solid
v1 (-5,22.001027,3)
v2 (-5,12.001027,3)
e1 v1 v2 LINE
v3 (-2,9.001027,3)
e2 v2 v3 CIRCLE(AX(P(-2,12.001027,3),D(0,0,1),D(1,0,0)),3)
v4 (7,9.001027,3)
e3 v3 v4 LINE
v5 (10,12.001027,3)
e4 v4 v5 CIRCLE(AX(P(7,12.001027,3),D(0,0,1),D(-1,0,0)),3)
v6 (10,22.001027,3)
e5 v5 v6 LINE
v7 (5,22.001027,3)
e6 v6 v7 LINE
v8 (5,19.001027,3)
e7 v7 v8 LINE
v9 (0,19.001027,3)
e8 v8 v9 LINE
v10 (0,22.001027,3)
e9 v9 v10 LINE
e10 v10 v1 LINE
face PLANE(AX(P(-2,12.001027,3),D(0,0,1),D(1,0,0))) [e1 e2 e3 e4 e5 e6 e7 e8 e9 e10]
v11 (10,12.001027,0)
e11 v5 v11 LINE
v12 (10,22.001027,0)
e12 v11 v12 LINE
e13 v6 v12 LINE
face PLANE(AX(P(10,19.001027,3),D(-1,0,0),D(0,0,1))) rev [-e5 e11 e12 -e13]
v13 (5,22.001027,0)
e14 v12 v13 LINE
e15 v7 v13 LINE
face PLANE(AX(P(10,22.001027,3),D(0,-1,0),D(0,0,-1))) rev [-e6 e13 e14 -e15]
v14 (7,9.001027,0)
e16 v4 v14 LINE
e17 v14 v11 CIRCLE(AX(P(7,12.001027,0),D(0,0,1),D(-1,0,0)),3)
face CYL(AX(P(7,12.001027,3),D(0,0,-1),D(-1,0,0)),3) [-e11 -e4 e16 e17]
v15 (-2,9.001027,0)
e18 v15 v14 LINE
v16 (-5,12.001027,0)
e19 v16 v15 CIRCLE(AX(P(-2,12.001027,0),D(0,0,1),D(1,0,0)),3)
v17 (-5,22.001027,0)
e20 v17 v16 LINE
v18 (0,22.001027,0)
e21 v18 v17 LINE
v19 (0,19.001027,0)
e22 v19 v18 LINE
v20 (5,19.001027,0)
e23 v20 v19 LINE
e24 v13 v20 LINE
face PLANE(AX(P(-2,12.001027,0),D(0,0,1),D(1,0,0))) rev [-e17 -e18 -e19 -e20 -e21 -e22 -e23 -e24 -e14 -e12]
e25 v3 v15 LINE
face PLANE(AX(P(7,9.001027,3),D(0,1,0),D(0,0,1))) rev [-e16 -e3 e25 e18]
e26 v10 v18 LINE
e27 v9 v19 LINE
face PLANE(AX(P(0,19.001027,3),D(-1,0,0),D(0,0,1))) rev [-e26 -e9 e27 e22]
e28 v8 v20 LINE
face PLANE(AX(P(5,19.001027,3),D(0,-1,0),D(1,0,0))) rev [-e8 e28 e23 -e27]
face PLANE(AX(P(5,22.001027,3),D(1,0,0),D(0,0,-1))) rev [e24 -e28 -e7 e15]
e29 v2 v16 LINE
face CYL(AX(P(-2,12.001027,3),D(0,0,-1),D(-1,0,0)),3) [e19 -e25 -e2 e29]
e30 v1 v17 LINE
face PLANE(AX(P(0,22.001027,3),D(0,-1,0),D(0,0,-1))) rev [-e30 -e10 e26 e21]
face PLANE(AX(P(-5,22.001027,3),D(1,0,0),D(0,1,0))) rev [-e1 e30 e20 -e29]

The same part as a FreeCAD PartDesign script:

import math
import FreeCAD as App
import Part
import Sketcher
Q = App.Units.Quantity

doc = App.newDocument("Part")
params = doc.addObject("Spreadsheet::Sheet", "Params")
for row, (alias, value) in enumerate([
    ("sketch1_radius", "3 mm"),
    ("sketch1_width", "5 mm"),
    ("sketch1_height", "10 mm"),
    ("sketch1_height2", "3 mm"),
    ("pad1_length", "3 mm"),
], start=1):
    params.set(f"A{row}", alias)
    params.set(f"B{row}", "=" + value)
    params.setAlias(f"B{row}", alias)

body = doc.addObject("PartDesign::Body", "Body")

sketch1 = body.newObject("Sketcher::SketchObject", "Sketch")
sketch1.AttachmentSupport = (doc.getObject("XY_Plane"), [""])
sketch1.MapMode = "FlatFace"
sketch1.addGeometry([
    Part.LineSegment(App.Vector(0, 22, 0), App.Vector(-5, 22, 0)),
    Part.LineSegment(App.Vector(-5, 22, 0), App.Vector(-5, 12, 0)),
    Part.ArcOfCircle(Part.Circle(App.Vector(-2, 12, 0), App.Vector(0, 0, 1), 3), math.radians(180), math.radians(270)),
    Part.LineSegment(App.Vector(-2, 9, 0), App.Vector(7, 9, 0)),
    Part.ArcOfCircle(Part.Circle(App.Vector(7, 12, 0), App.Vector(0, 0, 1), 3), math.radians(-90), math.radians(0)),
    Part.LineSegment(App.Vector(10, 12, 0), App.Vector(10, 22, 0)),
    Part.LineSegment(App.Vector(10, 22, 0), App.Vector(5, 22, 0)),
    Part.LineSegment(App.Vector(5, 22, 0), App.Vector(5, 19, 0)),
    Part.LineSegment(App.Vector(5, 19, 0), App.Vector(0, 19, 0)),
    Part.LineSegment(App.Vector(0, 19, 0), App.Vector(0, 22, 0)),
], False)
sketch1.addConstraint([
    Sketcher.Constraint("Coincident", 0, 2, 1, 1),
    Sketcher.Constraint("Tangent", 1, 2, 2, 1),
    Sketcher.Constraint("Tangent", 2, 2, 3, 1),
    Sketcher.Constraint("Tangent", 3, 2, 4, 1),
    Sketcher.Constraint("Tangent", 4, 2, 5, 1),
    Sketcher.Constraint("Coincident", 5, 2, 6, 1),
    Sketcher.Constraint("Coincident", 6, 2, 7, 1),
    Sketcher.Constraint("Coincident", 7, 2, 8, 1),
    Sketcher.Constraint("Coincident", 8, 2, 9, 1),
    Sketcher.Constraint("Coincident", 9, 2, 0, 1),
    Sketcher.Constraint("Horizontal", 0),
    Sketcher.Constraint("Vertical", 1),
    Sketcher.Constraint("Horizontal", 3),
    Sketcher.Constraint("Vertical", 5),
    Sketcher.Constraint("Horizontal", 6),
    Sketcher.Constraint("Vertical", 7),
    Sketcher.Constraint("Horizontal", 8),
    Sketcher.Constraint("Vertical", 9),
    Sketcher.Constraint("Equal", 2, 4),
    Sketcher.Constraint("Symmetric", 0, 2, 6, 2, -2),
    Sketcher.Constraint("PointOnObject", 8, 2, -2),
    Sketcher.Constraint("Equal", 0, 6),
    Sketcher.Constraint("Radius", 2, Q("3 mm")),
    Sketcher.Constraint("DistanceX", 0, 2, 0, 1, Q("5 mm")),
    Sketcher.Constraint("DistanceY", 1, 2, 1, 1, Q("10 mm")),
    Sketcher.Constraint("DistanceY", 7, 2, 7, 1, Q("3 mm")),
    Sketcher.Constraint("DistanceY", -1, 1, 2, 3, Q("12.001027 mm")),
])
sketch1.setExpression("Constraints[22]", "Params.sketch1_radius")
sketch1.setExpression("Constraints[23]", "Params.sketch1_width")
sketch1.setExpression("Constraints[24]", "Params.sketch1_height")
sketch1.setExpression("Constraints[25]", "Params.sketch1_height2")
pad1 = body.newObject("PartDesign::Pad", "Pad")
pad1.Profile = sketch1
pad1.setExpression("Length", "Params.pad1_length")

doc.recompute()
